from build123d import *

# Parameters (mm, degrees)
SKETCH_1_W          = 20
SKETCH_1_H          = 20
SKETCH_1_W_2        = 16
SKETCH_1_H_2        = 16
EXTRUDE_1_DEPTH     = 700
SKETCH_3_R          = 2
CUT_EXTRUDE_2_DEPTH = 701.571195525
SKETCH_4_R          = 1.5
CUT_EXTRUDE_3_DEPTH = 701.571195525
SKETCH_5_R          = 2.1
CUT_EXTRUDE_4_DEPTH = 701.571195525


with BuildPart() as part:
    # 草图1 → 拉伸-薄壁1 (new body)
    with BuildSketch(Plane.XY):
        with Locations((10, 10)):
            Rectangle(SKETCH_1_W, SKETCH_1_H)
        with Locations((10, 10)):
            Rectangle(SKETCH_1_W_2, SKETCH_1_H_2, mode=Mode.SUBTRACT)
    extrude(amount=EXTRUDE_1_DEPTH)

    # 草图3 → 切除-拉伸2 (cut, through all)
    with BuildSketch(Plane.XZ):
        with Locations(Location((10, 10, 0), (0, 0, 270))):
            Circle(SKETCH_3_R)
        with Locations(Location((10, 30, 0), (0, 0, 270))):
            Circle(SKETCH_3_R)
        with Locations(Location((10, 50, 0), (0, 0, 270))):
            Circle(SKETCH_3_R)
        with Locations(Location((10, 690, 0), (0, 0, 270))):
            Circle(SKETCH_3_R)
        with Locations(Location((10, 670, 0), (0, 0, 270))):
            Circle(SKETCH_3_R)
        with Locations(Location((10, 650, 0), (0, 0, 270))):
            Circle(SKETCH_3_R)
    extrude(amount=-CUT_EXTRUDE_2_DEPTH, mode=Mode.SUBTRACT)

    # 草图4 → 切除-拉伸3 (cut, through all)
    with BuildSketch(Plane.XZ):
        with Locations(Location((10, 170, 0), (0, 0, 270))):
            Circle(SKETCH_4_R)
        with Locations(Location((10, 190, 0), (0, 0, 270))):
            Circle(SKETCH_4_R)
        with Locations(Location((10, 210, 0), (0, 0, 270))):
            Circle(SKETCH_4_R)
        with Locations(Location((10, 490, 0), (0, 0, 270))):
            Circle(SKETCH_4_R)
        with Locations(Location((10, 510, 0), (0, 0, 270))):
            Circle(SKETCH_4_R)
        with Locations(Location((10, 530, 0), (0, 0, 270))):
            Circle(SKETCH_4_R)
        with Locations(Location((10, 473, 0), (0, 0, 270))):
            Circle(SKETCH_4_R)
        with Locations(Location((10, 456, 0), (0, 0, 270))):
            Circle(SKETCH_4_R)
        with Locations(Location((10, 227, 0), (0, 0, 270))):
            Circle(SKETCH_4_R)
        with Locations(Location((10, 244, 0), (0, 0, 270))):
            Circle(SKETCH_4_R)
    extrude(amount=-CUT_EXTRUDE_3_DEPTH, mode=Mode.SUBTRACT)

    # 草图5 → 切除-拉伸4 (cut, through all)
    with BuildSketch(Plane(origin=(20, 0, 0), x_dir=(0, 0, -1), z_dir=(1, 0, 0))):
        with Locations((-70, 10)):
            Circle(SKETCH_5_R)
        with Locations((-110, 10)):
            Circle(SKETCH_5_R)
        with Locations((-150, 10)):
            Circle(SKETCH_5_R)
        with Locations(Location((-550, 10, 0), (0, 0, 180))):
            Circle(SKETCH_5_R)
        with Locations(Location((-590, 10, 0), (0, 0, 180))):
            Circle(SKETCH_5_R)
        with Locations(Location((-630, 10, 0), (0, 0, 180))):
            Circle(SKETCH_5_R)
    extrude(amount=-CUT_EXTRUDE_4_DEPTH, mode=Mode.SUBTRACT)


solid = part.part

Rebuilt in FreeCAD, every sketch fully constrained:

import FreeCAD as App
import Part
import Sketcher

doc = App.newDocument("Part")
params = doc.addObject("Spreadsheet::Sheet", "Params")
for row, (alias, value) in enumerate([
    ("sketch1_width", "20 mm"),
    ("sketch1_width2", "16 mm"),
    ("pad1_length", "700 mm"),
    ("sketch2_diameter", "4 mm"),
    ("sketch3_diameter", "3 mm"),
    ("sketch4_diameter", "4.2 mm"),
], start=1):
    params.set(f"A{row}", alias)
    params.set(f"B{row}", "=" + value)
    params.setAlias(f"B{row}", alias)

body = doc.addObject("PartDesign::Body", "Body")

# Sketch on XY plane
sketch1 = doc.addObject("Sketcher::SketchObject", "Sketch")
body.addObject(sketch1)
sketch1.AttachmentSupport = (doc.XY_Plane, [""])
sketch1.MapMode = "FlatFace"
sketch1.addGeometry(Part.LineSegment(App.Vector(0, 20, 0), App.Vector(0, 0, 0)), False)
sketch1.addGeometry(Part.LineSegment(App.Vector(0, 0, 0), App.Vector(20, 0, 0)), False)
sketch1.addGeometry(Part.LineSegment(App.Vector(20, 0, 0), App.Vector(20, 20, 0)), False)
sketch1.addGeometry(Part.LineSegment(App.Vector(20, 20, 0), App.Vector(0, 20, 0)), False)
sketch1.addGeometry(Part.LineSegment(App.Vector(18, 2, 0), App.Vector(2, 2, 0)), False)
sketch1.addGeometry(Part.LineSegment(App.Vector(2, 2, 0), App.Vector(2, 18, 0)), False)
sketch1.addGeometry(Part.LineSegment(App.Vector(2, 18, 0), App.Vector(18, 18, 0)), False)
sketch1.addGeometry(Part.LineSegment(App.Vector(18, 18, 0), App.Vector(18, 2, 0)), False)
sketch1.addConstraint(Sketcher.Constraint("Coincident", 0, 2, 1, 1))
sketch1.addConstraint(Sketcher.Constraint("Coincident", 1, 2, 2, 1))
sketch1.addConstraint(Sketcher.Constraint("Coincident", 2, 2, 3, 1))
sketch1.addConstraint(Sketcher.Constraint("Coincident", 3, 2, 0, 1))
sketch1.addConstraint(Sketcher.Constraint("Coincident", 4, 2, 5, 1))
sketch1.addConstraint(Sketcher.Constraint("Coincident", 5, 2, 6, 1))
sketch1.addConstraint(Sketcher.Constraint("Coincident", 6, 2, 7, 1))
sketch1.addConstraint(Sketcher.Constraint("Coincident", 7, 2, 4, 1))
sketch1.addConstraint(Sketcher.Constraint("Vertical", 0))
sketch1.addConstraint(Sketcher.Constraint("Horizontal", 1))
sketch1.addConstraint(Sketcher.Constraint("Vertical", 2))
sketch1.addConstraint(Sketcher.Constraint("Horizontal", 3))
sketch1.addConstraint(Sketcher.Constraint("Horizontal", 4))
sketch1.addConstraint(Sketcher.Constraint("Vertical", 5))
sketch1.addConstraint(Sketcher.Constraint("Horizontal", 6))
sketch1.addConstraint(Sketcher.Constraint("Vertical", 7))
sketch1.addConstraint(Sketcher.Constraint("Coincident", 0, 2, -1, 1))
sketch1.addConstraint(Sketcher.Constraint("Equal", 3, 0))
sketch1.addConstraint(Sketcher.Constraint("Equal", 6, 5))
sketch1.addConstraint(Sketcher.Constraint("DistanceX", 1, 1, 1, 2, 20.0))
sketch1.addConstraint(Sketcher.Constraint("DistanceX", 4, 2, 4, 1, 16.0))
sketch1.addConstraint(Sketcher.Constraint("DistanceX", -1, 1, 4, 2, 2.0))
sketch1.addConstraint(Sketcher.Constraint("DistanceY", -1, 1, 4, 2, 2.0))
sketch1.setExpression("Constraints[19]", "Params.sketch1_width")
sketch1.setExpression("Constraints[20]", "Params.sketch1_width2")
pad1 = doc.addObject("PartDesign::Pad", "Pad")
body.addObject(pad1)
pad1.Profile = sketch1
pad1.setExpression("Length", "Params.pad1_length")

# Sketch on XZ plane
sketch2 = doc.addObject("Sketcher::SketchObject", "Sketch001")
body.addObject(sketch2)
sketch2.AttachmentSupport = (doc.XZ_Plane, [""])
sketch2.MapMode = "FlatFace"
sketch2.addGeometry(Part.Circle(App.Vector(10, 10, 0), App.Vector(0, 0, 1), 2), False)
sketch2.addGeometry(Part.Circle(App.Vector(10, 30, 0), App.Vector(0, 0, 1), 2), False)
sketch2.addGeometry(Part.Circle(App.Vector(10, 50, 0), App.Vector(0, 0, 1), 2), False)
sketch2.addGeometry(Part.Circle(App.Vector(10, 690, 0), App.Vector(0, 0, 1), 2), False)
sketch2.addGeometry(Part.Circle(App.Vector(10, 670, 0), App.Vector(0, 0, 1), 2), False)
sketch2.addGeometry(Part.Circle(App.Vector(10, 650, 0), App.Vector(0, 0, 1), 2), False)
sketch2.addConstraint(Sketcher.Constraint("Equal", 0, 1))
sketch2.addConstraint(Sketcher.Constraint("Equal", 1, 2))
sketch2.addConstraint(Sketcher.Constraint("Equal", 2, 3))
sketch2.addConstraint(Sketcher.Constraint("Equal", 3, 4))
sketch2.addConstraint(Sketcher.Constraint("Equal", 4, 5))
sketch2.addConstraint(Sketcher.Constraint("Vertical", 0, 3, 1, 3))
sketch2.addConstraint(Sketcher.Constraint("Vertical", 1, 3, 2, 3))
sketch2.addConstraint(Sketcher.Constraint("Vertical", 2, 3, 3, 3))
sketch2.addConstraint(Sketcher.Constraint("Vertical", 3, 3, 4, 3))
sketch2.addConstraint(Sketcher.Constraint("Vertical", 4, 3, 5, 3))
sketch2.addConstraint(Sketcher.Constraint("Diameter", 0, 4.0))
sketch2.addConstraint(Sketcher.Constraint("DistanceX", -1, 1, 0, 3, 10.0))
sketch2.addConstraint(Sketcher.Constraint("DistanceY", -1, 1, 0, 3, 10.0))
sketch2.addConstraint(Sketcher.Constraint("DistanceY", -1, 1, 1, 3, 30.0))
sketch2.addConstraint(Sketcher.Constraint("DistanceY", -1, 1, 2, 3, 50.0))
sketch2.addConstraint(Sketcher.Constraint("DistanceY", -1, 1, 3, 3, 690.0))
sketch2.addConstraint(Sketcher.Constraint("DistanceY", -1, 1, 4, 3, 670.0))
sketch2.addConstraint(Sketcher.Constraint("DistanceY", -1, 1, 5, 3, 650.0))
sketch2.setExpression("Constraints[10]", "Params.sketch2_diameter")
pocket1 = doc.addObject("PartDesign::Pocket", "Pocket")
body.addObject(pocket1)
pocket1.Profile = sketch2
pocket1.Type = "ThroughAll"

# Sketch on XZ plane
sketch3 = doc.addObject("Sketcher::SketchObject", "Sketch002")
body.addObject(sketch3)
sketch3.AttachmentSupport = (doc.XZ_Plane, [""])
sketch3.MapMode = "FlatFace"
sketch3.addGeometry(Part.Circle(App.Vector(10, 170, 0), App.Vector(0, 0, 1), 1.5), False)
sketch3.addGeometry(Part.Circle(App.Vector(10, 190, 0), App.Vector(0, 0, 1), 1.5), False)
sketch3.addGeometry(Part.Circle(App.Vector(10, 210, 0), App.Vector(0, 0, 1), 1.5), False)
sketch3.addGeometry(Part.Circle(App.Vector(10, 490, 0), App.Vector(0, 0, 1), 1.5), False)
sketch3.addGeometry(Part.Circle(App.Vector(10, 510, 0), App.Vector(0, 0, 1), 1.5), False)
sketch3.addGeometry(Part.Circle(App.Vector(10, 530, 0), App.Vector(0, 0, 1), 1.5), False)
sketch3.addGeometry(Part.Circle(App.Vector(10, 473, 0), App.Vector(0, 0, 1), 1.5), False)
sketch3.addGeometry(Part.Circle(App.Vector(10, 456, 0), App.Vector(0, 0, 1), 1.5), False)
sketch3.addGeometry(Part.Circle(App.Vector(10, 227, 0), App.Vector(0, 0, 1), 1.5), False)
sketch3.addGeometry(Part.Circle(App.Vector(10, 244, 0), App.Vector(0, 0, 1), 1.5), False)
sketch3.addConstraint(Sketcher.Constraint("Equal", 0, 1))
sketch3.addConstraint(Sketcher.Constraint("Equal", 1, 2))
sketch3.addConstraint(Sketcher.Constraint("Equal", 2, 3))
sketch3.addConstraint(Sketcher.Constraint("Equal", 3, 4))
sketch3.addConstraint(Sketcher.Constraint("Equal", 4, 5))
sketch3.addConstraint(Sketcher.Constraint("Equal", 5, 6))
sketch3.addConstraint(Sketcher.Constraint("Equal", 6, 7))
sketch3.addConstraint(Sketcher.Constraint("Equal", 7, 8))
sketch3.addConstraint(Sketcher.Constraint("Equal", 8, 9))
sketch3.addConstraint(Sketcher.Constraint("Vertical", 0, 3, 1, 3))
sketch3.addConstraint(Sketcher.Constraint("Vertical", 1, 3, 2, 3))
sketch3.addConstraint(Sketcher.Constraint("Vertical", 2, 3, 3, 3))
sketch3.addConstraint(Sketcher.Constraint("Vertical", 3, 3, 4, 3))
sketch3.addConstraint(Sketcher.Constraint("Vertical", 4, 3, 5, 3))
sketch3.addConstraint(Sketcher.Constraint("Vertical", 5, 3, 6, 3))
sketch3.addConstraint(Sketcher.Constraint("Vertical", 6, 3, 7, 3))
sketch3.addConstraint(Sketcher.Constraint("Vertical", 7, 3, 8, 3))
sketch3.addConstraint(Sketcher.Constraint("Vertical", 8, 3, 9, 3))
sketch3.addConstraint(Sketcher.Constraint("Diameter", 0, 3.0))
sketch3.addConstraint(Sketcher.Constraint("DistanceX", -1, 1, 0, 3, 10.0))
sketch3.addConstraint(Sketcher.Constraint("DistanceY", -1, 1, 0, 3, 170.0))
sketch3.addConstraint(Sketcher.Constraint("DistanceY", -1, 1, 1, 3, 190.0))
sketch3.addConstraint(Sketcher.Constraint("DistanceY", -1, 1, 2, 3, 210.0))
sketch3.addConstraint(Sketcher.Constraint("DistanceY", -1, 1, 3, 3, 490.0))
sketch3.addConstraint(Sketcher.Constraint("DistanceY", -1, 1, 4, 3, 510.0))
sketch3.addConstraint(Sketcher.Constraint("DistanceY", -1, 1, 5, 3, 530.0))
sketch3.addConstraint(Sketcher.Constraint("DistanceY", -1, 1, 6, 3, 473.0))
sketch3.addConstraint(Sketcher.Constraint("DistanceY", -1, 1, 7, 3, 456.0))
sketch3.addConstraint(Sketcher.Constraint("DistanceY", -1, 1, 8, 3, 227.0))
sketch3.addConstraint(Sketcher.Constraint("DistanceY", -1, 1, 9, 3, 244.0))
sketch3.setExpression("Constraints[18]", "Params.sketch3_diameter")
pocket2 = doc.addObject("PartDesign::Pocket", "Pocket001")
body.addObject(pocket2)
pocket2.Profile = sketch3
pocket2.Type = "ThroughAll"

# Sketch on YZ plane
sketch4 = doc.addObject("Sketcher::SketchObject", "Sketch003")
body.addObject(sketch4)
sketch4.AttachmentSupport = (doc.YZ_Plane, [""])
sketch4.MapMode = "FlatFace"
sketch4.AttachmentOffset = App.Placement(App.Vector(0, 0, 20), App.Rotation())
sketch4.addGeometry(Part.Circle(App.Vector(10, 70, 0), App.Vector(0, 0, 1), 2.1), False)
sketch4.addGeometry(Part.Circle(App.Vector(10, 110, 0), App.Vector(0, 0, 1), 2.1), False)
sketch4.addGeometry(Part.Circle(App.Vector(10, 150, 0), App.Vector(0, 0, 1), 2.1), False)
sketch4.addGeometry(Part.Circle(App.Vector(10, 550, 0), App.Vector(0, 0, 1), 2.1), False)
sketch4.addGeometry(Part.Circle(App.Vector(10, 590, 0), App.Vector(0, 0, 1), 2.1), False)
sketch4.addGeometry(Part.Circle(App.Vector(10, 630, 0), App.Vector(0, 0, 1), 2.1), False)
sketch4.addConstraint(Sketcher.Constraint("Equal", 0, 1))
sketch4.addConstraint(Sketcher.Constraint("Equal", 1, 2))
sketch4.addConstraint(Sketcher.Constraint("Equal", 2, 3))
sketch4.addConstraint(Sketcher.Constraint("Equal", 3, 4))
sketch4.addConstraint(Sketcher.Constraint("Equal", 4, 5))
sketch4.addConstraint(Sketcher.Constraint("Vertical", 0, 3, 1, 3))
sketch4.addConstraint(Sketcher.Constraint("Vertical", 1, 3, 2, 3))
sketch4.addConstraint(Sketcher.Constraint("Vertical", 2, 3, 3, 3))
sketch4.addConstraint(Sketcher.Constraint("Vertical", 3, 3, 4, 3))
sketch4.addConstraint(Sketcher.Constraint("Vertical", 4, 3, 5, 3))
sketch4.addConstraint(Sketcher.Constraint("Diameter", 0, 4.2))
sketch4.addConstraint(Sketcher.Constraint("DistanceX", -1, 1, 0, 3, 10.0))
sketch4.addConstraint(Sketcher.Constraint("DistanceY", -1, 1, 0, 3, 70.0))
sketch4.addConstraint(Sketcher.Constraint("DistanceY", -1, 1, 1, 3, 110.0))
sketch4.addConstraint(Sketcher.Constraint("DistanceY", -1, 1, 2, 3, 150.0))
sketch4.addConstraint(Sketcher.Constraint("DistanceY", -1, 1, 3, 3, 550.0))
sketch4.addConstraint(Sketcher.Constraint("DistanceY", -1, 1, 4, 3, 590.0))
sketch4.addConstraint(Sketcher.Constraint("DistanceY", -1, 1, 5, 3, 630.0))
sketch4.setExpression("Constraints[10]", "Params.sketch4_diameter")
pocket3 = doc.addObject("PartDesign::Pocket", "Pocket002")
body.addObject(pocket3)
pocket3.Profile = sketch4
pocket3.Type = "ThroughAll"

doc.recompute()
